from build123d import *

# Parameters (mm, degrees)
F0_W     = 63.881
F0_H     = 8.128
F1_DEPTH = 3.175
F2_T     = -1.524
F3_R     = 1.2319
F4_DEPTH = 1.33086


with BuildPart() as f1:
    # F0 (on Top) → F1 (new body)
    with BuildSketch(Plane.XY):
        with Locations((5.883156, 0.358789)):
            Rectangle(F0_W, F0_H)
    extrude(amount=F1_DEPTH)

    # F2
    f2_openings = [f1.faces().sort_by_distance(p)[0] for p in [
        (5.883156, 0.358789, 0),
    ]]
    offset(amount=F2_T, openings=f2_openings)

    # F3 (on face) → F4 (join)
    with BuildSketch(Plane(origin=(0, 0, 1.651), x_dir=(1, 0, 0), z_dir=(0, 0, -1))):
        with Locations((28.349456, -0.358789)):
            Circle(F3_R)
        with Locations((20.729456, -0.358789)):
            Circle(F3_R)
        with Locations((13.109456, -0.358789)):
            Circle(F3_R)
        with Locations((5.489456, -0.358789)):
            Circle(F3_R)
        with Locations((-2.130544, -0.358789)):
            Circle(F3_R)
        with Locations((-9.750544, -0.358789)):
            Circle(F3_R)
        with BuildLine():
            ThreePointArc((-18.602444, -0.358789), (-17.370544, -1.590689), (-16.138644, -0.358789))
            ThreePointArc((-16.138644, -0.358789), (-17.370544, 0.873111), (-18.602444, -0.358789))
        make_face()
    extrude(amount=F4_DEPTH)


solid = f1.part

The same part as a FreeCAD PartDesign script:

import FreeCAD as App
import Part
import Sketcher

V = App.Vector
Q = App.Units.Quantity


def faces_at(feature, points):
    """Names of the faces that lie closest to the given points."""
    faces = feature.Shape.Faces
    near = lambda p: min(range(len(faces)), key=lambda i: faces[i].distToShape(Part.Vertex(*p))[0])
    return sorted({f"Face{near(p) + 1}" for p in points})


def add_polygon(sketch, points):
    """Adds a closed chain of lines whose ends are joined by coincident constraints."""
    first, n = sketch.GeometryCount, len(points)
    for a, b in zip(points, points[1:] + points[:1]):
        sketch.addGeometry(Part.LineSegment(App.Vector(*a, 0), App.Vector(*b, 0)), False)
    for i in range(n):
        sketch.addConstraint(Sketcher.Constraint("Coincident", first + i, 2, first + (i + 1) % n, 1))

doc = App.newDocument("Part")
body = doc.addObject("PartDesign::Body", "Body")

# Sketch on XY plane
sketch1 = body.newObject("Sketcher::SketchObject", "Sketch")
sketch1.AttachmentSupport = (doc.getObject("XY_Plane"), [""])
sketch1.MapMode = "FlatFace"
add_polygon(sketch1, [(-26, 4), (-26, -4), (38, -4), (38, 4)])  # lines 0-3
sketch1.addConstraint(Sketcher.Constraint("Vertical", 0))
sketch1.addConstraint(Sketcher.Constraint("Horizontal", 1))
sketch1.addConstraint(Sketcher.Constraint("Vertical", 2))
sketch1.addConstraint(Sketcher.Constraint("Horizontal", 3))
sketch1.addConstraint(Sketcher.Constraint("DistanceY", 0, 2, 0, 1, Q("0.32 in")))
sketch1.addConstraint(Sketcher.Constraint("DistanceX", 1, 1, 1, 2, Q("2.515 in")))
sketch1.addConstraint(Sketcher.Constraint("DistanceY", 0, 2, -1, 1, Q("3.705211 mm")))
sketch1.addConstraint(Sketcher.Constraint("DistanceX", 0, 2, -1, 1, Q("26.057344 mm")))
pad1 = body.newObject("PartDesign::Pad", "Pad")
pad1.Profile = sketch1
pad1.Length = Q("0.125 in")
doc.recompute()

thickness = body.newObject("PartDesign::Thickness", "Thickness")
thickness.Base = (pad1, faces_at(pad1, [(5.883, 0.359, 0)]))
thickness.Value = Q("0.06 in")
thickness.Reversed = True
thickness.Join = "Arc"

# Sketch on XY plane
sketch2 = body.newObject("Sketcher::SketchObject", "Sketch001")
sketch2.AttachmentSupport = (doc.getObject("XY_Plane"), [""])
sketch2.MapMode = "FlatFace"
sketch2.AttachmentOffset = App.Placement(V(0, 0, 0.065 * 25.4), App.Rotation())
sketch2.addGeometry(Part.Circle(V(28.3, 0.4, 0), V(0, 0, 1), 1.2), False)
sketch2.addGeometry(Part.Circle(V(20.7, 0.4, 0), V(0, 0, 1), 1.2), False)
sketch2.addGeometry(Part.Circle(V(13.1, 0.4, 0), V(0, 0, 1), 1.2), False)
sketch2.addGeometry(Part.Circle(V(5.5, 0.4, 0), V(0, 0, 1), 1.2), False)
sketch2.addGeometry(Part.Circle(V(-2.1, 0.4, 0), V(0, 0, 1), 1.2), False)
sketch2.addGeometry(Part.Circle(V(-9.8, 0.4, 0), V(0, 0, 1), 1.2), False)
sketch2.addGeometry(Part.Circle(V(-17.4, 0.4, 0), V(0, 0, 1), 1.2), False)
sketch2.addConstraint(Sketcher.Constraint("Equal", 0, 1))
sketch2.addConstraint(Sketcher.Constraint("Equal", 1, 2))
sketch2.addConstraint(Sketcher.Constraint("Equal", 2, 3))
sketch2.addConstraint(Sketcher.Constraint("Equal", 3, 4))
sketch2.addConstraint(Sketcher.Constraint("Equal", 4, 5))
sketch2.addConstraint(Sketcher.Constraint("Equal", 5, 6))
sketch2.addConstraint(Sketcher.Constraint("Horizontal", 0, 3, 1, 3))
sketch2.addConstraint(Sketcher.Constraint("Horizontal", 1, 3, 2, 3))
sketch2.addConstraint(Sketcher.Constraint("Horizontal", 2, 3, 3, 3))
sketch2.addConstraint(Sketcher.Constraint("Horizontal", 3, 3, 4, 3))
sketch2.addConstraint(Sketcher.Constraint("Horizontal", 4, 3, 5, 3))
sketch2.addConstraint(Sketcher.Constraint("Horizontal", 5, 3, 6, 3))
sketch2.addConstraint(Sketcher.Constraint("Diameter", 0, Q("0.097 in")))
sketch2.addConstraint(Sketcher.Constraint("DistanceX", 1, 3, 0, 3, Q("0.3 in")))
sketch2.addConstraint(Sketcher.Constraint("DistanceX", 2, 3, 1, 3, Q("0.3 in")))
sketch2.addConstraint(Sketcher.Constraint("DistanceX", 3, 3, 2, 3, Q("0.3 in")))
sketch2.addConstraint(Sketcher.Constraint("DistanceX", 4, 3, 3, 3, Q("0.3 in")))
sketch2.addConstraint(Sketcher.Constraint("DistanceX", 5, 3, 4, 3, Q("0.3 in")))
sketch2.addConstraint(Sketcher.Constraint("DistanceX", 6, 3, 5, 3, Q("0.3 in")))
sketch2.addConstraint(Sketcher.Constraint("DistanceY", -1, 1, 0, 3, Q("0.358789 mm")))
sketch2.addConstraint(Sketcher.Constraint("DistanceX", -1, 1, 0, 3, Q("28.349456 mm")))
pad2 = body.newObject("PartDesign::Pad", "Pad001")
pad2.Profile = sketch2
pad2.Length = 1.33086
pad2.Reversed = True

doc.recompute()
